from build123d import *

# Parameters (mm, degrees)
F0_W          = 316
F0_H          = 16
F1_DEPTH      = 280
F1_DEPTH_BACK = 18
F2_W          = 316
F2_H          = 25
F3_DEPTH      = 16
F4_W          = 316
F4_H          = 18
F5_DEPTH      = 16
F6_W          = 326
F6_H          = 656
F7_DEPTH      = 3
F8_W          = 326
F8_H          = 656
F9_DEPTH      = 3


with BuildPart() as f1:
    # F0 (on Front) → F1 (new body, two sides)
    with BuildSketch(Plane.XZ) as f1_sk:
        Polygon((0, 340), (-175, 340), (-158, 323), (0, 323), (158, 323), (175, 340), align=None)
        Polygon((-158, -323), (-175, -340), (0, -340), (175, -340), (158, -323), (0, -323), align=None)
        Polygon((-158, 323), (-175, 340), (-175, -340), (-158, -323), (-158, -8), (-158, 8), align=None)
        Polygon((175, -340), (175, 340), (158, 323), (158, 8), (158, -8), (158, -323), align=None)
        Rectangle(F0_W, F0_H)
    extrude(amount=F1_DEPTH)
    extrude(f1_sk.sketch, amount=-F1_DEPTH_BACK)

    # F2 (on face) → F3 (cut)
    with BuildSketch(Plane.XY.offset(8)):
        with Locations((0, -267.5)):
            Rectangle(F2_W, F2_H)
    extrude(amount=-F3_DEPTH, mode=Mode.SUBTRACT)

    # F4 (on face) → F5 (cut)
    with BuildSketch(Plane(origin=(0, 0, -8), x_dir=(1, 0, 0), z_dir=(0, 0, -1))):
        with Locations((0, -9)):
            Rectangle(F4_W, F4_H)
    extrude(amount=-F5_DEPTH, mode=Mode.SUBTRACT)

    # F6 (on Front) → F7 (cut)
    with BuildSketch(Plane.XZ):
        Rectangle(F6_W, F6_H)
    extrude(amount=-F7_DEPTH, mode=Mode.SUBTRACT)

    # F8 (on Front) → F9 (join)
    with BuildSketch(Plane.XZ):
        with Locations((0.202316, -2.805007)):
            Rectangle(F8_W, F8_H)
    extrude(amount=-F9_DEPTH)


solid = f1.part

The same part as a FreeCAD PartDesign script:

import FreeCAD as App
import Part
import Sketcher

V = App.Vector
Q = App.Units.Quantity


def add_polygon(sketch, points):
    """Adds a closed chain of lines whose ends are joined by coincident constraints."""
    first, n = sketch.GeometryCount, len(points)
    for a, b in zip(points, points[1:] + points[:1]):
        sketch.addGeometry(Part.LineSegment(App.Vector(*a, 0), App.Vector(*b, 0)), False)
    for i in range(n):
        sketch.addConstraint(Sketcher.Constraint("Coincident", first + i, 2, first + (i + 1) % n, 1))

doc = App.newDocument("Part")
params = doc.addObject("Spreadsheet::Sheet", "Params")
for row, (alias, value) in enumerate([
    ("sketch1_width", "350 mm"),
    ("sketch1_width2", "316 mm"),
    ("sketch1_height", "680 mm"),
    ("sketch1_height2", "315 mm"),
    ("pad1_length", "280 mm"),
    ("pad1_length2", "18 mm"),
    ("sketch2_width", "316 mm"),
    ("sketch2_height", "25 mm"),
    ("pocket1_length", "16 mm"),
    ("sketch3_width", "316 mm"),
    ("sketch3_height", "18 mm"),
    ("pocket2_length", "16 mm"),
    ("sketch4_width", "326 mm"),
    ("sketch4_height", "656 mm"),
    ("pocket3_length", "3 mm"),
    ("sketch5_width", "326 mm"),
    ("sketch5_height", "656 mm"),
    ("pad2_length", "3 mm"),
], start=1):
    params.set(f"A{row}", alias)
    params.set(f"B{row}", "=" + value)
    params.setAlias(f"B{row}", alias)

body = doc.addObject("PartDesign::Body", "Body")

sketch1 = body.newObject("Sketcher::SketchObject", "Sketch")
sketch1.AttachmentSupport = (doc.getObject("XZ_Plane"), [""])
sketch1.MapMode = "FlatFace"
add_polygon(sketch1, [(175, 340), (-175, 340), (-175, -340), (175, -340)])
add_polygon(sketch1, [(-158, 323), (158, 323), (158, 8), (-158, 8)])
add_polygon(sketch1, [(158, -8), (158, -323), (-158, -323), (-158, -8)])
sketch1.addConstraint(Sketcher.Constraint("Horizontal", 0))
sketch1.addConstraint(Sketcher.Constraint("Vertical", 1))
sketch1.addConstraint(Sketcher.Constraint("Horizontal", 2))
sketch1.addConstraint(Sketcher.Constraint("Vertical", 3))
sketch1.addConstraint(Sketcher.Constraint("Horizontal", 4))
sketch1.addConstraint(Sketcher.Constraint("Vertical", 5))
sketch1.addConstraint(Sketcher.Constraint("Horizontal", 6))
sketch1.addConstraint(Sketcher.Constraint("Vertical", 7))
sketch1.addConstraint(Sketcher.Constraint("Vertical", 8))
sketch1.addConstraint(Sketcher.Constraint("Horizontal", 9))
sketch1.addConstraint(Sketcher.Constraint("Vertical", 10))
sketch1.addConstraint(Sketcher.Constraint("Horizontal", 11))
sketch1.addConstraint(Sketcher.Constraint("Symmetric", 0, 2, 2, 2, -1, 1))
sketch1.addConstraint(Sketcher.Constraint("Symmetric", 7, 2, 8, 2, -1, 1))
sketch1.addConstraint(Sketcher.Constraint("Symmetric", 5, 2, 10, 2, -1, 1))
sketch1.addConstraint(Sketcher.Constraint("Vertical", 5, 2, 8, 2))
sketch1.addConstraint(Sketcher.Constraint("DistanceX", 0, 2, 0, 1, Q("350 mm")))
sketch1.addConstraint(Sketcher.Constraint("DistanceX", 4, 1, 4, 2, Q("316 mm")))
sketch1.addConstraint(Sketcher.Constraint("DistanceY", 1, 2, 1, 1, Q("680 mm")))
sketch1.addConstraint(Sketcher.Constraint("DistanceY", 5, 2, 5, 1, Q("315 mm")))
sketch1.addConstraint(Sketcher.Constraint("DistanceY", -1, 1, 4, 2, Q("323 mm")))
sketch1.setExpression("Constraints[28]", "Params.sketch1_width")
sketch1.setExpression("Constraints[29]", "Params.sketch1_width2")
sketch1.setExpression("Constraints[30]", "Params.sketch1_height")
sketch1.setExpression("Constraints[31]", "Params.sketch1_height2")
pad1 = body.newObject("PartDesign::Pad", "Pad")
pad1.Profile = sketch1
pad1.Type = "TwoLengths"
pad1.setExpression("Length", "Params.pad1_length")
pad1.setExpression("Length2", "Params.pad1_length2")

sketch2 = body.newObject("Sketcher::SketchObject", "Sketch001")
sketch2.AttachmentSupport = (doc.getObject("XY_Plane"), [""])
sketch2.MapMode = "FlatFace"
sketch2.AttachmentOffset = App.Placement(V(0, 0, 8), App.Rotation())
add_polygon(sketch2, [(-158, -255), (-158, -280), (158, -280), (158, -255)])
sketch2.addConstraint(Sketcher.Constraint("Vertical", 0))
sketch2.addConstraint(Sketcher.Constraint("Horizontal", 1))
sketch2.addConstraint(Sketcher.Constraint("Vertical", 2))
sketch2.addConstraint(Sketcher.Constraint("Horizontal", 3))
sketch2.addConstraint(Sketcher.Constraint("DistanceX", 1, 1, 1, 2, Q("316 mm")))
sketch2.addConstraint(Sketcher.Constraint("DistanceY", 0, 2, 0, 1, Q("25 mm")))
sketch2.addConstraint(Sketcher.Constraint("DistanceX", 0, 2, -1, 1, Q("158 mm")))
sketch2.addConstraint(Sketcher.Constraint("DistanceY", 0, 2, -1, 1, Q("280 mm")))
sketch2.setExpression("Constraints[8]", "Params.sketch2_width")
sketch2.setExpression("Constraints[9]", "Params.sketch2_height")
pocket1 = body.newObject("PartDesign::Pocket", "Pocket")
pocket1.Profile = sketch2
pocket1.setExpression("Length", "Params.pocket1_length")

sketch3 = body.newObject("Sketcher::SketchObject", "Sketch002")
sketch3.AttachmentSupport = (doc.getObject("XY_Plane"), [""])
sketch3.MapMode = "FlatFace"
sketch3.AttachmentOffset = App.Placement(V(0, 0, -8), App.Rotation())
add_polygon(sketch3, [(-158, 0), (-158, 18), (158, 18), (158, 0)])
sketch3.addConstraint(Sketcher.Constraint("Vertical", 0))
sketch3.addConstraint(Sketcher.Constraint("Horizontal", 1))
sketch3.addConstraint(Sketcher.Constraint("Vertical", 2))
sketch3.addConstraint(Sketcher.Constraint("Horizontal", 3))
sketch3.addConstraint(Sketcher.Constraint("Symmetric", 2, 2, 3, 2, -1, 1))
sketch3.addConstraint(Sketcher.Constraint("DistanceX", 1, 1, 1, 2, Q("316 mm")))
sketch3.addConstraint(Sketcher.Constraint("DistanceY", 0, 1, 0, 2, Q("18 mm")))
sketch3.setExpression("Constraints[9]", "Params.sketch3_width")
sketch3.setExpression("Constraints[10]", "Params.sketch3_height")
pocket2 = body.newObject("PartDesign::Pocket", "Pocket001")
pocket2.Profile = sketch3
pocket2.setExpression("Length", "Params.pocket2_length")
pocket2.Reversed = True

sketch4 = body.newObject("Sketcher::SketchObject", "Sketch003")
sketch4.AttachmentSupport = (doc.getObject("XZ_Plane"), [""])
sketch4.MapMode = "FlatFace"
add_polygon(sketch4, [(-163, 328), (-163, -328), (163, -328), (163, 328)])
sketch4.addConstraint(Sketcher.Constraint("Vertical", 0))
sketch4.addConstraint(Sketcher.Constraint("Horizontal", 1))
sketch4.addConstraint(Sketcher.Constraint("Vertical", 2))
sketch4.addConstraint(Sketcher.Constraint("Horizontal", 3))
sketch4.addConstraint(Sketcher.Constraint("Symmetric", 0, 2, 2, 2, -1, 1))
sketch4.addConstraint(Sketcher.Constraint("DistanceX", 1, 1, 1, 2, Q("326 mm")))
sketch4.addConstraint(Sketcher.Constraint("DistanceY", 0, 2, 0, 1, Q("656 mm")))
sketch4.setExpression("Constraints[9]", "Params.sketch4_width")
sketch4.setExpression("Constraints[10]", "Params.sketch4_height")
pocket3 = body.newObject("PartDesign::Pocket", "Pocket002")
pocket3.Profile = sketch4
pocket3.setExpression("Length", "Params.pocket3_length")

sketch5 = body.newObject("Sketcher::SketchObject", "Sketch004")
sketch5.AttachmentSupport = (doc.getObject("XZ_Plane"), [""])
sketch5.MapMode = "FlatFace"
add_polygon(sketch5, [(-163, 325), (-163, -331), (163, -331), (163, 325)])
sketch5.addConstraint(Sketcher.Constraint("Vertical", 0))
sketch5.addConstraint(Sketcher.Constraint("Horizontal", 1))
sketch5.addConstraint(Sketcher.Constraint("Vertical", 2))
sketch5.addConstraint(Sketcher.Constraint("Horizontal", 3))
sketch5.addConstraint(Sketcher.Constraint("DistanceX", 1, 1, 1, 2, Q("326 mm")))
sketch5.addConstraint(Sketcher.Constraint("DistanceY", 0, 2, 0, 1, Q("656 mm")))
sketch5.addConstraint(Sketcher.Constraint("DistanceX", 0, 2, -1, 1, Q("162.797684 mm")))
sketch5.addConstraint(Sketcher.Constraint("DistanceY", 0, 2, -1, 1, Q("330.805007 mm")))
sketch5.setExpression("Constraints[8]", "Params.sketch5_width")
sketch5.setExpression("Constraints[9]", "Params.sketch5_height")
pad2 = body.newObject("PartDesign::Pad", "Pad001")
pad2.Profile = sketch5
pad2.setExpression("Length", "Params.pad2_length")
pad2.Reversed = True

doc.recompute()
